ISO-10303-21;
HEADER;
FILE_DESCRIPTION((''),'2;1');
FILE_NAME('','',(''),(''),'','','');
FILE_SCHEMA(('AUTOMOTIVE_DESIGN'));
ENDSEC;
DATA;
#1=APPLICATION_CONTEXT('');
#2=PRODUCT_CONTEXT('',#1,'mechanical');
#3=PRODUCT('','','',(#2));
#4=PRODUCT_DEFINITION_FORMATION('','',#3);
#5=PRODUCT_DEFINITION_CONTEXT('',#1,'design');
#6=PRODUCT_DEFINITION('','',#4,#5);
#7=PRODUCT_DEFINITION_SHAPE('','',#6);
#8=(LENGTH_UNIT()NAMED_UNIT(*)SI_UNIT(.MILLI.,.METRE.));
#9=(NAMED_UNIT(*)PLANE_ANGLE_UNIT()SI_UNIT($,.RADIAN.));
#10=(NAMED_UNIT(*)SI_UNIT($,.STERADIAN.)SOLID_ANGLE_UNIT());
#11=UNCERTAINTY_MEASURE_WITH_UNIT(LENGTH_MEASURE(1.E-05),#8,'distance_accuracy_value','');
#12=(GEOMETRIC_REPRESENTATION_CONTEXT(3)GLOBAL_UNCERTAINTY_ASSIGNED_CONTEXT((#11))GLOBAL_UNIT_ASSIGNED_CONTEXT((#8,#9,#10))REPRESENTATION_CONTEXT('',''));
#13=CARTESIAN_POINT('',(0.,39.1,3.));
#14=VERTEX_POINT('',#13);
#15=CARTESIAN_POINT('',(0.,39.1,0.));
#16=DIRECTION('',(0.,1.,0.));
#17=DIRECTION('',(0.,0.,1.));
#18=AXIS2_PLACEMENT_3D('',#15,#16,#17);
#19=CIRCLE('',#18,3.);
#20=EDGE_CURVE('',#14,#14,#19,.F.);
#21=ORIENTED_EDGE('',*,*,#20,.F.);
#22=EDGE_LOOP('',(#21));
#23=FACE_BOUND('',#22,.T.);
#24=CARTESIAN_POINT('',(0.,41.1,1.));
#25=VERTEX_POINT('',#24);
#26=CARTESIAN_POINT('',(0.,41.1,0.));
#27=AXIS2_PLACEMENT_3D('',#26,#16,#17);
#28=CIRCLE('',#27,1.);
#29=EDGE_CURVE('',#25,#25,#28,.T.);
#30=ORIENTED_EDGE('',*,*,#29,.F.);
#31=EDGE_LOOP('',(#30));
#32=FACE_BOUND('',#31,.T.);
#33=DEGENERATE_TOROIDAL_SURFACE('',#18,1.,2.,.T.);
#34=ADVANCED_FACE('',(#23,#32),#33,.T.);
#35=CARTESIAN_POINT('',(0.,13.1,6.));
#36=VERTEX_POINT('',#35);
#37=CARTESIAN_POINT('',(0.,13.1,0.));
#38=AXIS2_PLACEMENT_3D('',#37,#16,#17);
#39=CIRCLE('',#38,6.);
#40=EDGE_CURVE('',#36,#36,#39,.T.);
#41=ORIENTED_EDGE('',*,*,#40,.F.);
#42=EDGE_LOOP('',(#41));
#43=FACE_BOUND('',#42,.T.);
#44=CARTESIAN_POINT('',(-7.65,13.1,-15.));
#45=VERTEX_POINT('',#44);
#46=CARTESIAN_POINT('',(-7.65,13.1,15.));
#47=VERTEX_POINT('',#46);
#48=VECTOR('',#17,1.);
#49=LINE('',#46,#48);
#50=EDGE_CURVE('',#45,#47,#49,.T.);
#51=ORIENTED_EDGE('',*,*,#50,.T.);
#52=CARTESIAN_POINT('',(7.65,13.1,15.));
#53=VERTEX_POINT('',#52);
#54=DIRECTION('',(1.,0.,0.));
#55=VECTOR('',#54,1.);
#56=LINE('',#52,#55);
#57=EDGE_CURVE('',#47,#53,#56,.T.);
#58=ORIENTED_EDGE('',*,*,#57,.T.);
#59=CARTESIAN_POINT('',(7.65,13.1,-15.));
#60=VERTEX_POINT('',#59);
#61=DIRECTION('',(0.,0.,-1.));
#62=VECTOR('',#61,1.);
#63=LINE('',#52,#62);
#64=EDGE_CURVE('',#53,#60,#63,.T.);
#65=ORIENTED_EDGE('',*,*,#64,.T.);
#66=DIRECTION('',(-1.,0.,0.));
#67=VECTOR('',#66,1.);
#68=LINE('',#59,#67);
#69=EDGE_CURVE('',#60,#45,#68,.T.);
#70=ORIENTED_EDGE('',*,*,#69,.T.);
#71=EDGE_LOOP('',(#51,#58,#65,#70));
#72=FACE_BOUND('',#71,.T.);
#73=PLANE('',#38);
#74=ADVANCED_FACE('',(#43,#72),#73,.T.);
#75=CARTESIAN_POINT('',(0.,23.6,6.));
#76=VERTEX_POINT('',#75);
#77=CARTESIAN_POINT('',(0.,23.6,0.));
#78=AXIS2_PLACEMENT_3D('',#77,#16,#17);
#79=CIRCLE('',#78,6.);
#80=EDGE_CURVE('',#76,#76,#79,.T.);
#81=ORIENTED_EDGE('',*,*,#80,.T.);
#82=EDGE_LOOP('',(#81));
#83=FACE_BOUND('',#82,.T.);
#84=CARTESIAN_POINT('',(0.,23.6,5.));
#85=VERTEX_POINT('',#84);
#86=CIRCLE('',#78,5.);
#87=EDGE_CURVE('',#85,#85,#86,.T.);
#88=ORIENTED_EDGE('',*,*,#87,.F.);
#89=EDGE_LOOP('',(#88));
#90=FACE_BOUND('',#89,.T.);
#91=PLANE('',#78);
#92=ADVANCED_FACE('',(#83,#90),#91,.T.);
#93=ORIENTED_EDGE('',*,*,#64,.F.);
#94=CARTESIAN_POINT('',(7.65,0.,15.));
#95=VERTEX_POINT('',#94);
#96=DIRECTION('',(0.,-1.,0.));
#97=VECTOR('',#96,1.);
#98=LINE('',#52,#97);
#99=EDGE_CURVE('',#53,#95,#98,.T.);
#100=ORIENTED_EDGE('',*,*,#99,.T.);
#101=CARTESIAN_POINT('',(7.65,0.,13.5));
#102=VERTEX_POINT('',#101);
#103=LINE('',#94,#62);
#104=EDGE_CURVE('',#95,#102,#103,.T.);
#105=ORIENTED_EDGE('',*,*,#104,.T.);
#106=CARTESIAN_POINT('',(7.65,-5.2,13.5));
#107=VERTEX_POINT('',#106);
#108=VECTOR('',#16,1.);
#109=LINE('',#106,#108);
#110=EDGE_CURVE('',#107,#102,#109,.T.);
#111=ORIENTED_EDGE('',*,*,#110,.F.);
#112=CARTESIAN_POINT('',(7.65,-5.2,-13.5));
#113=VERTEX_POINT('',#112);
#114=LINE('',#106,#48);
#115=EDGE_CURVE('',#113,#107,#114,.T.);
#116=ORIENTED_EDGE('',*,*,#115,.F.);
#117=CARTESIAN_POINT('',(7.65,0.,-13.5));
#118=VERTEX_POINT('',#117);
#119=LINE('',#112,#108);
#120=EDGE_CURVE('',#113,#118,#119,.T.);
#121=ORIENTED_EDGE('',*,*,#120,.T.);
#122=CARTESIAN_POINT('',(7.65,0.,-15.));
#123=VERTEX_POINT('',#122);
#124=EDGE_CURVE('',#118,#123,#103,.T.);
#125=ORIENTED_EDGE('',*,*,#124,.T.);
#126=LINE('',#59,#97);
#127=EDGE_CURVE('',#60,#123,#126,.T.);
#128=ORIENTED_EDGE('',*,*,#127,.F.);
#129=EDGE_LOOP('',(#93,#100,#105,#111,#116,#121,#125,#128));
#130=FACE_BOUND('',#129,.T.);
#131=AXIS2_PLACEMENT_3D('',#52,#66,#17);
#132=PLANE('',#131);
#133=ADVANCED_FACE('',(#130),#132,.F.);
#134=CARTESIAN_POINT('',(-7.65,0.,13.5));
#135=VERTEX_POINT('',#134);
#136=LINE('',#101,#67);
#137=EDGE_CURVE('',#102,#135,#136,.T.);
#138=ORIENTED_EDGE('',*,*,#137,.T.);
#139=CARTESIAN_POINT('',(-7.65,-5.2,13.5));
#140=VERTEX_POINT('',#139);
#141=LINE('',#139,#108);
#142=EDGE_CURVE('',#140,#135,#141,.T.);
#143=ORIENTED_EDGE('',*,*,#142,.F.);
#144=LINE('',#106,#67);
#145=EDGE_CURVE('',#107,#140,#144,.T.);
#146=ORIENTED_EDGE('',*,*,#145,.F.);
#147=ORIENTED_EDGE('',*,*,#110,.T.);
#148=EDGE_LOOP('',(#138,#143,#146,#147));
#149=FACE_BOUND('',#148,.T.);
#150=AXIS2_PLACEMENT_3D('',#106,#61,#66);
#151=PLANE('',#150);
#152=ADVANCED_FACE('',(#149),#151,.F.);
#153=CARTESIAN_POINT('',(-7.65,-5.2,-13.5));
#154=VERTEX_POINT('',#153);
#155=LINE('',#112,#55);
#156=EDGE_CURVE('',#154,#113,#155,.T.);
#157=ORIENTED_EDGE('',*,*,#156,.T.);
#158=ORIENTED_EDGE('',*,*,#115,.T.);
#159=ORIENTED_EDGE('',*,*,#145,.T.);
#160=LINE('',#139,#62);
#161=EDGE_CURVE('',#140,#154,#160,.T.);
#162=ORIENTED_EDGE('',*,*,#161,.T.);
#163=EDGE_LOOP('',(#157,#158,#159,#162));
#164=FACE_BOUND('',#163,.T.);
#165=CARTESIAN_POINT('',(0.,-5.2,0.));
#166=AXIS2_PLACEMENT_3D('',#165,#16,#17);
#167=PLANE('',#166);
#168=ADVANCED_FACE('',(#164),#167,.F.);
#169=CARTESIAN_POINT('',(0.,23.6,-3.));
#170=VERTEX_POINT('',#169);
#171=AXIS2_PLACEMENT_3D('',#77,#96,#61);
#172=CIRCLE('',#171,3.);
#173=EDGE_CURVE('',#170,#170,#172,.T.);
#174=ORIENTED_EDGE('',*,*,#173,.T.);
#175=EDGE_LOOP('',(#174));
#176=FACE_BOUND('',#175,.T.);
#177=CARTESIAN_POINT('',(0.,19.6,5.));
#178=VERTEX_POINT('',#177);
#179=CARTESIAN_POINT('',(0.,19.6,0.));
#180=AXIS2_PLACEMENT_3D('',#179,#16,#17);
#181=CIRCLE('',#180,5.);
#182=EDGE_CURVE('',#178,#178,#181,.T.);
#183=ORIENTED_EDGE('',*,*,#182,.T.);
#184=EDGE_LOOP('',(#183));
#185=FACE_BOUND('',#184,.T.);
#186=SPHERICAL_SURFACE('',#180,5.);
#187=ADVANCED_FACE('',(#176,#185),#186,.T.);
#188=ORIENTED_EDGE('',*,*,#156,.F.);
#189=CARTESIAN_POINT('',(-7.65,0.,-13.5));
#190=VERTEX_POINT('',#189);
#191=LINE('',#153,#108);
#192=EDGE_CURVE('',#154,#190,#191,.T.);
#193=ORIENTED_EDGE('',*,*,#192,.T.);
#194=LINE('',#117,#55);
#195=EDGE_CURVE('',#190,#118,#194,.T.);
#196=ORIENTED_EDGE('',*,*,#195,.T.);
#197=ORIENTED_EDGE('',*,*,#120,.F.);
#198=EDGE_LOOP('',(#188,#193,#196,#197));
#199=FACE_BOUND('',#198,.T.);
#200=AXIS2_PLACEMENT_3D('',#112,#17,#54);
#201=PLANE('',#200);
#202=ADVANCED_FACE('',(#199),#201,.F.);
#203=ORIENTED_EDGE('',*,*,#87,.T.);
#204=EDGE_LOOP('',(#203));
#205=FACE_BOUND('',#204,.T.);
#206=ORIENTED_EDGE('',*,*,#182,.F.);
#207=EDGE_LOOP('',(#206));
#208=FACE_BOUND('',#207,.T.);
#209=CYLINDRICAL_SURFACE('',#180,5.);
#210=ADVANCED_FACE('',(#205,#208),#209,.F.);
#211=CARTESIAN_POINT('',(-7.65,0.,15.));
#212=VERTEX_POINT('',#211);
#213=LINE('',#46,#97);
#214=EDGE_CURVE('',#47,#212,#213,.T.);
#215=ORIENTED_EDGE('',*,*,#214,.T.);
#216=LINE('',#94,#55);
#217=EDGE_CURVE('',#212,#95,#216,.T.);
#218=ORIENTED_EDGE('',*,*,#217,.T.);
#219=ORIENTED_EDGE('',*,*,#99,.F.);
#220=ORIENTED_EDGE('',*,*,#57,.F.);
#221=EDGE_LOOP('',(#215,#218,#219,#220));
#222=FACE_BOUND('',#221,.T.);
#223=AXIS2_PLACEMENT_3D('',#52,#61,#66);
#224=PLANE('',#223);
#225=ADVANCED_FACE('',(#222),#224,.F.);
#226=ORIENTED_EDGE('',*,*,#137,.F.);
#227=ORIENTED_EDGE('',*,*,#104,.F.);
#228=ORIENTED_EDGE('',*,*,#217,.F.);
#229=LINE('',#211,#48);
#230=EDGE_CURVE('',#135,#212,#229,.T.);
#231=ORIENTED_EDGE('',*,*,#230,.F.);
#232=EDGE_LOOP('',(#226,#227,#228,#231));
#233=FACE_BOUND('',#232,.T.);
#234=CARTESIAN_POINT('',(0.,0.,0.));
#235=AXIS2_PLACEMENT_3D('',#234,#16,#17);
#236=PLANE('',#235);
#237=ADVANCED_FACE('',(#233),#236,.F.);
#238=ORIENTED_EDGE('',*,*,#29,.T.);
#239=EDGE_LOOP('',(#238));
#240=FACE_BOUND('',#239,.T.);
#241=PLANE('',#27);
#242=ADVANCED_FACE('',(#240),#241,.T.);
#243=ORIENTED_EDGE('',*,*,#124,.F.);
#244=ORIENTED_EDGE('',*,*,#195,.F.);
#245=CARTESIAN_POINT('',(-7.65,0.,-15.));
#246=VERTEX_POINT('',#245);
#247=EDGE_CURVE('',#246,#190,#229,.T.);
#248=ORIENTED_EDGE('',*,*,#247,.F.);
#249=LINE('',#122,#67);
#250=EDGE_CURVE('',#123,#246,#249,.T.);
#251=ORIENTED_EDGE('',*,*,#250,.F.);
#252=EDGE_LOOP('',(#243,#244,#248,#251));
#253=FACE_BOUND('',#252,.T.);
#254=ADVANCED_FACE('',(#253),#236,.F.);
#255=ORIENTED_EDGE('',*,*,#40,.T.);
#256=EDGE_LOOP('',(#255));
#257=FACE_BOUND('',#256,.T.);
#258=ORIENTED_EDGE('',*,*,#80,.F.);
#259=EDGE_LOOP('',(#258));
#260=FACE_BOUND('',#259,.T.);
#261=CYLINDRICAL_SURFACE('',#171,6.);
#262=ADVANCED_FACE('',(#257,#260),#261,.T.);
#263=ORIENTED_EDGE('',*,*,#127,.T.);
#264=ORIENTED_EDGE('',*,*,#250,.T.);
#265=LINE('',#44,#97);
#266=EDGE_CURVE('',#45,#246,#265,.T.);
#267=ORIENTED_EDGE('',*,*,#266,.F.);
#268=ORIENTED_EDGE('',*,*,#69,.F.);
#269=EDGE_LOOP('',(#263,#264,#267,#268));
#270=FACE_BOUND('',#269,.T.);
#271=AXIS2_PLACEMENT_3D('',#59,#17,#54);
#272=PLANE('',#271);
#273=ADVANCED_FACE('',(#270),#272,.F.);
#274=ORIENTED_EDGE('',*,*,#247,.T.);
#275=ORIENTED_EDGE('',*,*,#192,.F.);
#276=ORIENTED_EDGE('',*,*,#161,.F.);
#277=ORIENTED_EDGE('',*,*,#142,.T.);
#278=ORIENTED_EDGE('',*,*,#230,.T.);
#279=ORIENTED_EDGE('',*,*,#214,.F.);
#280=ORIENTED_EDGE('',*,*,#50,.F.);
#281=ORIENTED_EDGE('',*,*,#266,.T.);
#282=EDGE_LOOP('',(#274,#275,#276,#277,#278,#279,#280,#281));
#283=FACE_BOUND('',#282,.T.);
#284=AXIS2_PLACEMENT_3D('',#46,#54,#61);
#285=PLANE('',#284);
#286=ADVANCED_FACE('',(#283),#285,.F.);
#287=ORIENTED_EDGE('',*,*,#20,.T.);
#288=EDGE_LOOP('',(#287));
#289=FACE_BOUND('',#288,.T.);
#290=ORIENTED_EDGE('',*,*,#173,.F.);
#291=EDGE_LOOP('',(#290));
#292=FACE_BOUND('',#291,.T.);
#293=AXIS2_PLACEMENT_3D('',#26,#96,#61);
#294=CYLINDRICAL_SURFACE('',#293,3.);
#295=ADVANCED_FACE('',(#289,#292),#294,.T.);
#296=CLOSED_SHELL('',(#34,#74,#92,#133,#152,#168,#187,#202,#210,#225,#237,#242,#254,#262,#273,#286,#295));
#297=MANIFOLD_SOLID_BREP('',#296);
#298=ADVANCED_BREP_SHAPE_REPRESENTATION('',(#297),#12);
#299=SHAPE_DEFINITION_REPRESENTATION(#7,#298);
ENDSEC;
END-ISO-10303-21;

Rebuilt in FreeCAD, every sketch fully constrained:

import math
import FreeCAD as App
import Part
import Sketcher

V = App.Vector
Q = App.Units.Quantity


def edges_at(feature, points):
    """Names of the edges that pass closest to the given points."""
    edges = feature.Shape.Edges
    near = lambda p: min(range(len(edges)), key=lambda i: edges[i].distToShape(Part.Vertex(*p))[0])
    return sorted({f"Edge{near(p) + 1}" for p in points})

doc = App.newDocument("Part")
body = doc.addObject("PartDesign::Body", "Body")

# Sketch on XZ plane
sketch1 = body.newObject("Sketcher::SketchObject", "Sketch")
sketch1.AttachmentSupport = (doc.getObject("XZ_Plane"), [""])
sketch1.MapMode = "FlatFace"
sketch1.addGeometry([
    Part.LineSegment(V(-8, -15, 0), V(-8, 15, 0)),
    Part.LineSegment(V(-8, 15, 0), V(8, 15, 0)),
    Part.LineSegment(V(8, 15, 0), V(8, -15, 0)),
    Part.LineSegment(V(8, -15, 0), V(-8, -15, 0)),
], False)
sketch1.addConstraint([
    Sketcher.Constraint("Coincident", 0, 2, 1, 1),
    Sketcher.Constraint("Coincident", 1, 2, 2, 1),
    Sketcher.Constraint("Coincident", 2, 2, 3, 1),
    Sketcher.Constraint("Coincident", 3, 2, 0, 1),
    Sketcher.Constraint("Vertical", 0),
    Sketcher.Constraint("Horizontal", 1),
    Sketcher.Constraint("Vertical", 2),
    Sketcher.Constraint("Horizontal", 3),
    Sketcher.Constraint("Symmetric", 0, 2, 2, 2, -1, 1),
    Sketcher.Constraint("DistanceY", 0, 1, 0, 2, Q("30 mm")),
    Sketcher.Constraint("DistanceX", 1, 1, 1, 2, Q("15.3 mm")),
])
pad1 = body.newObject("PartDesign::Pad", "Pad")
pad1.Profile = sketch1
pad1.Length = 13.1
pad1.Reversed = True

# Sketch on XZ plane
sketch2 = body.newObject("Sketcher::SketchObject", "Sketch001")
sketch2.AttachmentSupport = (doc.getObject("XZ_Plane"), [""])
sketch2.MapMode = "FlatFace"
sketch2.AttachmentOffset = App.Placement(V(0, 0, -13.1), App.Rotation())
sketch2.addGeometry(Part.Circle(V(0, 0, 0), V(0, 0, 1), 6), False)
sketch2.addConstraint([
    Sketcher.Constraint("Coincident", 0, 3, -1, 1),
    Sketcher.Constraint("Diameter", 0, Q("12 mm")),
])
pad2 = body.newObject("PartDesign::Pad", "Pad001")
pad2.Profile = sketch2
pad2.Length = 10.5
pad2.Reversed = True

# Sketch on XZ plane
sketch3 = body.newObject("Sketcher::SketchObject", "Sketch002")
sketch3.AttachmentSupport = (doc.getObject("XZ_Plane"), [""])
sketch3.MapMode = "FlatFace"
sketch3.AttachmentOffset = App.Placement(V(0, 0, -23.6), App.Rotation())
sketch3.addGeometry(Part.Circle(V(0, 0, 0), V(0, 0, 1), 5), False)
sketch3.addConstraint([
    Sketcher.Constraint("Coincident", 0, 3, -1, 1),
    Sketcher.Constraint("Diameter", 0, Q("10 mm")),
])
pocket1 = body.newObject("PartDesign::Pocket", "Pocket")
pocket1.Profile = sketch3
pocket1.Length = 4
pocket1.Reversed = True

# Sketch on XZ plane
sketch4 = body.newObject("Sketcher::SketchObject", "Sketch003")
sketch4.AttachmentSupport = (doc.getObject("XZ_Plane"), [""])
sketch4.MapMode = "FlatFace"
sketch4.AttachmentOffset = App.Placement(V(0, 0, -19.6), App.Rotation())
sketch4.addGeometry(Part.Circle(V(0, 0, 0), V(0, 0, 1), 3), False)
sketch4.addConstraint([
    Sketcher.Constraint("Coincident", 0, 3, -1, 1),
    Sketcher.Constraint("Diameter", 0, Q("6 mm")),
])
pad3 = body.newObject("PartDesign::Pad", "Pad002")
pad3.Profile = sketch4
pad3.Length = 21.5
pad3.Reversed = True

# Sketch on XZ plane
sketch5 = body.newObject("Sketcher::SketchObject", "Sketch004")
sketch5.AttachmentSupport = (doc.getObject("XZ_Plane"), [""])
sketch5.MapMode = "FlatFace"
sketch5.AttachmentOffset = App.Placement(V(0, 0, -19.6), App.Rotation())
sketch5.addGeometry([
    Part.LineSegment(V(0, 5, 0), V(0, -5, 0)),
    Part.ArcOfCircle(Part.Circle(V(0, 0, 0), V(0, 0, 1), 5), math.radians(90), math.radians(270)),
], False)
sketch5.addConstraint([
    Sketcher.Constraint("Coincident", 0, 1, 1, 1),
    Sketcher.Constraint("Coincident", 1, 2, 0, 2),
    Sketcher.Constraint("Vertical", 0),
    Sketcher.Constraint("Coincident", 1, 3, -1, 1),
    Sketcher.Constraint("PointOnObject", 0, 1, -2),
    Sketcher.Constraint("Radius", 1, Q("5 mm")),
])
revolution = body.newObject("PartDesign::Revolution", "Revolution")
revolution.Profile = sketch5
revolution.ReferenceAxis = (sketch5, ["V_Axis"])
revolution.Angle = 180
revolution.Reversed = True
doc.recompute()

fillet = body.newObject("PartDesign::Fillet", "Fillet")
fillet.Base = (revolution, edges_at(revolution, [(-3, 41.1, 0)]))
fillet.Radius = 2

# Sketch on XZ plane
sketch6 = body.newObject("Sketcher::SketchObject", "Sketch005")
sketch6.AttachmentSupport = (doc.getObject("XZ_Plane"), [""])
sketch6.MapMode = "FlatFace"
sketch6.addGeometry([
    Part.LineSegment(V(-8, 14, 0), V(-8, -14, 0)),
    Part.LineSegment(V(-8, -14, 0), V(8, -14, 0)),
    Part.LineSegment(V(8, -14, 0), V(8, 14, 0)),
    Part.LineSegment(V(8, 14, 0), V(-8, 14, 0)),
], False)
sketch6.addConstraint([
    Sketcher.Constraint("Coincident", 0, 2, 1, 1),
    Sketcher.Constraint("Coincident", 1, 2, 2, 1),
    Sketcher.Constraint("Coincident", 2, 2, 3, 1),
    Sketcher.Constraint("Coincident", 3, 2, 0, 1),
    Sketcher.Constraint("Vertical", 0),
    Sketcher.Constraint("Horizontal", 1),
    Sketcher.Constraint("Vertical", 2),
    Sketcher.Constraint("Horizontal", 3),
    Sketcher.Constraint("Symmetric", 0, 2, 2, 2, -1, 1),
    Sketcher.Constraint("DistanceY", 0, 2, 0, 1, Q("27 mm")),
    Sketcher.Constraint("DistanceX", 1, 1, 1, 2, Q("15.3 mm")),
])
pad4 = body.newObject("PartDesign::Pad", "Pad003")
pad4.Profile = sketch6
pad4.Length = 5.2

doc.recompute()
